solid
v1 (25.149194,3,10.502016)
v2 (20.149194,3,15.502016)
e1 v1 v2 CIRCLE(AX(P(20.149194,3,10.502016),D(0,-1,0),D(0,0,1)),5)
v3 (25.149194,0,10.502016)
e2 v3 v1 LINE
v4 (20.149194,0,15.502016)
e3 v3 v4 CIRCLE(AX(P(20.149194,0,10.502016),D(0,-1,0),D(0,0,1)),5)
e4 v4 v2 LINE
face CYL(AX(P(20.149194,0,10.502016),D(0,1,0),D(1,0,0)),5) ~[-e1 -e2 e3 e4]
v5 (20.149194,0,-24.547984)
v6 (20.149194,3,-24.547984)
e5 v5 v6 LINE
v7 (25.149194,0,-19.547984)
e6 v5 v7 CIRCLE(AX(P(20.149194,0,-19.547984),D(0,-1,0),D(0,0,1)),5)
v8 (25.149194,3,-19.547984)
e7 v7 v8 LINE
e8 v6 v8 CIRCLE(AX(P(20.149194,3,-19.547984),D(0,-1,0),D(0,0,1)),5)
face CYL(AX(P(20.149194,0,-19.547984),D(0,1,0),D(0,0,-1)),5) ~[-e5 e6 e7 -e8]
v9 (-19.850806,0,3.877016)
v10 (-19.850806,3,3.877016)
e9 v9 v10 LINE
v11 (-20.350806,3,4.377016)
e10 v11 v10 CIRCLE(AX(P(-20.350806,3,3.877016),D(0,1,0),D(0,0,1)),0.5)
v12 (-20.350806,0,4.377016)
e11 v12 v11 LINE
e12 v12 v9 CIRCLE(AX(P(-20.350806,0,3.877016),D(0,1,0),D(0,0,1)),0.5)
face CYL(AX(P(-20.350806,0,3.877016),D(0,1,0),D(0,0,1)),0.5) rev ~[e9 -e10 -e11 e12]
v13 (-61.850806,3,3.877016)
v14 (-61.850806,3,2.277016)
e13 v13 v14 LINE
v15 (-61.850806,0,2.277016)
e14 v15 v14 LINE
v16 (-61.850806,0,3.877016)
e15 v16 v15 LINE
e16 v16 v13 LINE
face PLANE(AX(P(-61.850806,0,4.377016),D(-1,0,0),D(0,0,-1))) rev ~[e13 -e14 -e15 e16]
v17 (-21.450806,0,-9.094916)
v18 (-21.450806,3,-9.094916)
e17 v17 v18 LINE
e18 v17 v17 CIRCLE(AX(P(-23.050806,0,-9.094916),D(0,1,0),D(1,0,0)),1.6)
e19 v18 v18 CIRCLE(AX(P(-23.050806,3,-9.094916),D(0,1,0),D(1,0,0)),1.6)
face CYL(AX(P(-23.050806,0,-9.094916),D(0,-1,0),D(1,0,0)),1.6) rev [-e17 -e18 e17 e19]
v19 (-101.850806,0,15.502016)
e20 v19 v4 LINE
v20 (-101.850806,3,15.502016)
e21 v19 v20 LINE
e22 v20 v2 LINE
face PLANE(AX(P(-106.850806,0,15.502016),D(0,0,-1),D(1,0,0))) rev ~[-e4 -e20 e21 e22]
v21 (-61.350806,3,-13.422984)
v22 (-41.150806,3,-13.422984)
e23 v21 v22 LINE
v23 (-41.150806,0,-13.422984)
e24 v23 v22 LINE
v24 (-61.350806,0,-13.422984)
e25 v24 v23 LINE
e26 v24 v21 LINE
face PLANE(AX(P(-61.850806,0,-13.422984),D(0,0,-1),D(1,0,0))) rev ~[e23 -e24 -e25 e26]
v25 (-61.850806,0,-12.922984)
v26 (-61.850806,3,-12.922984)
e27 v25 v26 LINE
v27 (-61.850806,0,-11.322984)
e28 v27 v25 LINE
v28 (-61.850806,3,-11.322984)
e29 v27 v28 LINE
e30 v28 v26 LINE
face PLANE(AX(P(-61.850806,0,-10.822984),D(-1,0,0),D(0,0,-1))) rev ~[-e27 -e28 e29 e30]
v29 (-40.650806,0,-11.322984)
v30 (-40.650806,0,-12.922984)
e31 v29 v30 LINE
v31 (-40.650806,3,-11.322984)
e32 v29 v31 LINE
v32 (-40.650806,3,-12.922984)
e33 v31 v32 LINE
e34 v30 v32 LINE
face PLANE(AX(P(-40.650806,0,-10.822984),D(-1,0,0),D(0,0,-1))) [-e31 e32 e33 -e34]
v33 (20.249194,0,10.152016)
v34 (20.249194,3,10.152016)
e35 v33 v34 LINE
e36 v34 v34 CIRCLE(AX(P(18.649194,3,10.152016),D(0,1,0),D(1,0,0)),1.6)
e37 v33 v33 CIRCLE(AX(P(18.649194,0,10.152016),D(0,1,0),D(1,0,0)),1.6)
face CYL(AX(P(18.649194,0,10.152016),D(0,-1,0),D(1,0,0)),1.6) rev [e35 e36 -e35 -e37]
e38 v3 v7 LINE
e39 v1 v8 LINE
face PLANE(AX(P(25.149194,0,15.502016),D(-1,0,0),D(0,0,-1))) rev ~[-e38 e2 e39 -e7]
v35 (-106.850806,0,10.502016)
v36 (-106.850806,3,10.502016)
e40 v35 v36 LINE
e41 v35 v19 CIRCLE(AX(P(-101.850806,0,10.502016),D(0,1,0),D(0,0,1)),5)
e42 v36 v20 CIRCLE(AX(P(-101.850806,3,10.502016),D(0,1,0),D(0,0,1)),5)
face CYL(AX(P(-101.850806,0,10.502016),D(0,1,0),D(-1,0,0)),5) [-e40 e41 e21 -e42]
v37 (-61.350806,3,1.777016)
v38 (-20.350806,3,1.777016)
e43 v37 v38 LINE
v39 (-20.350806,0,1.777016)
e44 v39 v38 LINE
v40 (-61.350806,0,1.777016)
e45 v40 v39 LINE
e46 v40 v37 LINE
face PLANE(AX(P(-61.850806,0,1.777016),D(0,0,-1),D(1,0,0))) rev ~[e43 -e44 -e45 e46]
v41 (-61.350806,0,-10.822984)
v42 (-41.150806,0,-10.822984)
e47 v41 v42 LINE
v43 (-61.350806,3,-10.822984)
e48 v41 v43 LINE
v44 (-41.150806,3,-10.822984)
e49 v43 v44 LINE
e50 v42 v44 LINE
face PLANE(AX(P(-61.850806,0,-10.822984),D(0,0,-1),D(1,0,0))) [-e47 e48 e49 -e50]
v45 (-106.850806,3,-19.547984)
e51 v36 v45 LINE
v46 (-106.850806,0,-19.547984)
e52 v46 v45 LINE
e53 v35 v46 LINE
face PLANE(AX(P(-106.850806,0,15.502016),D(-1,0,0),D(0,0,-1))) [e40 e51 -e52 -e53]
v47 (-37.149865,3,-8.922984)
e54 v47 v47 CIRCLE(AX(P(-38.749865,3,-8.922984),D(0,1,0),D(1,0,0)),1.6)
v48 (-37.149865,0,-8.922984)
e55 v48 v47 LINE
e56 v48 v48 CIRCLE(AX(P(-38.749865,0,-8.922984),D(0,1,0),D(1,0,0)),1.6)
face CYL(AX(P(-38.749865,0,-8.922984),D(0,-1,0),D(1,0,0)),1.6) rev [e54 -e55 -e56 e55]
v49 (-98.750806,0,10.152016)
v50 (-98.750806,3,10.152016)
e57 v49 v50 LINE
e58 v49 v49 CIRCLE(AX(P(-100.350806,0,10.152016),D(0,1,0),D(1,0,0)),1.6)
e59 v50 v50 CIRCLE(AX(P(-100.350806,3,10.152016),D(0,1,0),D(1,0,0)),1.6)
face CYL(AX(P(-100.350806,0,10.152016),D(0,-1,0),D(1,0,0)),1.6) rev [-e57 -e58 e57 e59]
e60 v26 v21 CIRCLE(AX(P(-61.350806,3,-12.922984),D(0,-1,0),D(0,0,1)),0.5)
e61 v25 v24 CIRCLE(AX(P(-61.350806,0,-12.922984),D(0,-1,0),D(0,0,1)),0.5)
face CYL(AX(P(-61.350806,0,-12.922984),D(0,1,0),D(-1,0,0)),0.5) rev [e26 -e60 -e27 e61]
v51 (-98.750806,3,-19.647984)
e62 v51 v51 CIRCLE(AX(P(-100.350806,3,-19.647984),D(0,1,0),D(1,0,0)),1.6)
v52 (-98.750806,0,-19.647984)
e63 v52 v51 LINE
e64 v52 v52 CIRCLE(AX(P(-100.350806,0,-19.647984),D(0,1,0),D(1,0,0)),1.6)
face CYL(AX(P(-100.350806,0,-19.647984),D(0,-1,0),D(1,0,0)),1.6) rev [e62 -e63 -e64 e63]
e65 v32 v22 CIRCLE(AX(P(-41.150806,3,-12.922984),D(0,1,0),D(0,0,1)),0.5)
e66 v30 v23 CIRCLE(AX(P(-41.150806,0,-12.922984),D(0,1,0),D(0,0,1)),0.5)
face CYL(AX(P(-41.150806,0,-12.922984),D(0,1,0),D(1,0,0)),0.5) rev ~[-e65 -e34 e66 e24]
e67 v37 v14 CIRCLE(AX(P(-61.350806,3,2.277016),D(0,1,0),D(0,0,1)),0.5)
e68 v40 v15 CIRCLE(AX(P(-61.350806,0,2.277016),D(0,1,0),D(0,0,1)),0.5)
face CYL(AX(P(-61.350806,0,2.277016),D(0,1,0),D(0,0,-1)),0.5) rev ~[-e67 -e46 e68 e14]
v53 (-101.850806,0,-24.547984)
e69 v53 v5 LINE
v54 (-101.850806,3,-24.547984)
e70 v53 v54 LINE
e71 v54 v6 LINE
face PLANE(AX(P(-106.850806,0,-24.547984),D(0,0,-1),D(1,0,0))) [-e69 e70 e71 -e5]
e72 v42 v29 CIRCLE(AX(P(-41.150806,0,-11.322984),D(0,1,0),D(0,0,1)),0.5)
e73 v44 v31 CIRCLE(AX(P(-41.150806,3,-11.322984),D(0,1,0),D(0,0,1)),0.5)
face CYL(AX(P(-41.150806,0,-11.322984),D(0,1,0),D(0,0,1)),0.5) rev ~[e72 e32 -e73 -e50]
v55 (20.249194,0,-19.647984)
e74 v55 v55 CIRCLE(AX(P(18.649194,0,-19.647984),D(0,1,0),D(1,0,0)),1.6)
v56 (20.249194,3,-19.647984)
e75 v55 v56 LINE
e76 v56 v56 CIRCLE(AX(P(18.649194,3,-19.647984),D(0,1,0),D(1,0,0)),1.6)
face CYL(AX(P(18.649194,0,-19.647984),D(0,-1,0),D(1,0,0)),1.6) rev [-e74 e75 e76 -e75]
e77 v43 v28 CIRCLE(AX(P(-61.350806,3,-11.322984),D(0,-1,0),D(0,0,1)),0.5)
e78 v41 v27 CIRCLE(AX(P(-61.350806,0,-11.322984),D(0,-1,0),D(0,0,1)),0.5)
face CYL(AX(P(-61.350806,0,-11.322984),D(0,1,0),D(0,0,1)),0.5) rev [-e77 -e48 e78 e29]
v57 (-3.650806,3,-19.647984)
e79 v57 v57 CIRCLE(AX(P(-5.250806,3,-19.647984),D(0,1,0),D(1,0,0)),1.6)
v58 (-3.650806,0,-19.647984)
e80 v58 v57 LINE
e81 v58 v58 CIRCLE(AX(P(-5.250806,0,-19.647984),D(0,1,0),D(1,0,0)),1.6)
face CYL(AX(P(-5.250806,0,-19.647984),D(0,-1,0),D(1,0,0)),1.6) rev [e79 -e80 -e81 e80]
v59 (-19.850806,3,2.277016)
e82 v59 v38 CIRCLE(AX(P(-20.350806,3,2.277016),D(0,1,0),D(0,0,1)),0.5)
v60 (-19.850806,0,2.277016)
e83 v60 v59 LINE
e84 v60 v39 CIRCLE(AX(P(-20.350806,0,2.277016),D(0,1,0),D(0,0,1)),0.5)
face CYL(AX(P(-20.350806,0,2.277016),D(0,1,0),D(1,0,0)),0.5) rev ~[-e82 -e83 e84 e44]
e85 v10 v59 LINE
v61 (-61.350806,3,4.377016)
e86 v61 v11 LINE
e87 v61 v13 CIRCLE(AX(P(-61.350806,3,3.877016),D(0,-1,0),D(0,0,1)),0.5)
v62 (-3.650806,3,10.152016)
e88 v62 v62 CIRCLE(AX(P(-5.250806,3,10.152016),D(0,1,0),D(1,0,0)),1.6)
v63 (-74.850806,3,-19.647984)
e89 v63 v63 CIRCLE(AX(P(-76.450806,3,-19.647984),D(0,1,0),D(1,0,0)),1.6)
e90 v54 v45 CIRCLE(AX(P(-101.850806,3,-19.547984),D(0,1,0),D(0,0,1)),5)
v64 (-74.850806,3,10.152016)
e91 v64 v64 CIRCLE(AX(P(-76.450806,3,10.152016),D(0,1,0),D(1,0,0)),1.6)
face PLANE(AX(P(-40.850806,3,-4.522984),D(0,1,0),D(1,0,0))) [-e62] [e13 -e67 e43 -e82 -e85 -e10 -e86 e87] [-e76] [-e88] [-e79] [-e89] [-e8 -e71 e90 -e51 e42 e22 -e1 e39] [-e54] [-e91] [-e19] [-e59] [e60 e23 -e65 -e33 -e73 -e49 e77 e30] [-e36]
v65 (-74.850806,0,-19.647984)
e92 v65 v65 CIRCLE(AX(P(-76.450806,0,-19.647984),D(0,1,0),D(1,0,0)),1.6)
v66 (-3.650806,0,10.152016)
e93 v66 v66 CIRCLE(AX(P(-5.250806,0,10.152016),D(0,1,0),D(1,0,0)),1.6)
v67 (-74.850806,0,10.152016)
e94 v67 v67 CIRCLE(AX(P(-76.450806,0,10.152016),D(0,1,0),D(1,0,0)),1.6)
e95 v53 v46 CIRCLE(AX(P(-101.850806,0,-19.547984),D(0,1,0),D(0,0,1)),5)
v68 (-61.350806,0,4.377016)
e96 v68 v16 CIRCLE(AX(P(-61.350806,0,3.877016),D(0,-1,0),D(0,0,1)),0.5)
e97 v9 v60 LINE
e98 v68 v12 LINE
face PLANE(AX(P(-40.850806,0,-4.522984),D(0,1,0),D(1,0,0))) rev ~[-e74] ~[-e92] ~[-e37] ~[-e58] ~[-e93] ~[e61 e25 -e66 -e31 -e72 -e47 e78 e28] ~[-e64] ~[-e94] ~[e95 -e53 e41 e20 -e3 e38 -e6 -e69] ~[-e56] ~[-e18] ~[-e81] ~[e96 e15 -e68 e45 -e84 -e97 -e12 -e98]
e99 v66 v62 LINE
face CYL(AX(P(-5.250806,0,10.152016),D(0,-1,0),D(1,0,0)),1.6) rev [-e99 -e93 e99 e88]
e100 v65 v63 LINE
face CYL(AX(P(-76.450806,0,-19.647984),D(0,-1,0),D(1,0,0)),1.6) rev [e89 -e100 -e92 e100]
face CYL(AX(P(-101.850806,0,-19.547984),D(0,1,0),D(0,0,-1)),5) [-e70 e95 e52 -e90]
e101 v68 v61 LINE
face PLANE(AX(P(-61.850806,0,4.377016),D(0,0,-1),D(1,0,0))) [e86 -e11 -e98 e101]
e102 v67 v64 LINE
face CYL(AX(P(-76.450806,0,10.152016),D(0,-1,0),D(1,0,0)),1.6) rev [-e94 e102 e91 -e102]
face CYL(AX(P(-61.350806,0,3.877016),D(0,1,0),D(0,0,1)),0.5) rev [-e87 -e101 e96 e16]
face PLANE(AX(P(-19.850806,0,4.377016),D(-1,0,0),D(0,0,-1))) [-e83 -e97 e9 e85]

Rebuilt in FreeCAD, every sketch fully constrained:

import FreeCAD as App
import Part
import Sketcher
Q = App.Units.Quantity


def edges_at(feature, points):
    """Names of the edges that pass closest to the given points."""
    edges = feature.Shape.Edges
    near = lambda p: min(range(len(edges)), key=lambda i: edges[i].distToShape(Part.Vertex(*p))[0])
    return sorted({f"Edge{near(p) + 1}" for p in points})

doc = App.newDocument("Part")
body = doc.addObject("PartDesign::Body", "Body")

# Sketch on XZ plane
sketch1 = body.newObject("Sketcher::SketchObject", "Sketch")
sketch1.AttachmentSupport = (doc.getObject("XZ_Plane"), [""])
sketch1.MapMode = "FlatFace"
sketch1.addGeometry([
    Part.LineSegment(App.Vector(-106.850806, -24.547984, 0), App.Vector(-106.850806, 15.502016, 0)),  # 0
    Part.LineSegment(App.Vector(-106.850806, 15.502016, 0), App.Vector(25.149194, 15.502016, 0)),  # 1
    Part.LineSegment(App.Vector(25.149194, 15.502016, 0), App.Vector(25.149194, -24.547984, 0)),  # 2
    Part.LineSegment(App.Vector(25.149194, -24.547984, 0), App.Vector(-106.850806, -24.547984, 0)),  # 3
    Part.Circle(App.Vector(-100.350806, 10.152016, 0), App.Vector(0, 0, 1), 1.6),  # 4
    Part.Circle(App.Vector(-76.450806, 10.152016, 0), App.Vector(0, 0, 1), 1.6),  # 5
    Part.Circle(App.Vector(-5.250806, 10.152016, 0), App.Vector(0, 0, 1), 1.6),  # 6
    Part.Circle(App.Vector(18.649194, 10.152016, 0), App.Vector(0, 0, 1), 1.6),  # 7
    Part.LineSegment(App.Vector(-19.850806, 4.377016, 0), App.Vector(-61.850806, 4.377016, 0)),  # 8
    Part.LineSegment(App.Vector(-61.850806, 4.377016, 0), App.Vector(-61.850806, 1.777016, 0)),  # 9
    Part.LineSegment(App.Vector(-61.850806, 1.777016, 0), App.Vector(-19.850806, 1.777016, 0)),  # 10
    Part.LineSegment(App.Vector(-19.850806, 1.777016, 0), App.Vector(-19.850806, 4.377016, 0)),  # 11
    Part.LineSegment(App.Vector(-40.650806, -10.822984, 0), App.Vector(-61.850806, -10.822984, 0)),  # 12
    Part.LineSegment(App.Vector(-61.850806, -10.822984, 0), App.Vector(-61.850806, -13.422984, 0)),  # 13
    Part.LineSegment(App.Vector(-61.850806, -13.422984, 0), App.Vector(-40.650806, -13.422984, 0)),  # 14
    Part.LineSegment(App.Vector(-40.650806, -13.422984, 0), App.Vector(-40.650806, -10.822984, 0)),  # 15
    Part.Circle(App.Vector(-100.350806, -19.647984, 0), App.Vector(0, 0, 1), 1.6),  # 16
    Part.Circle(App.Vector(-76.450806, -19.647984, 0), App.Vector(0, 0, 1), 1.6),  # 17
    Part.Circle(App.Vector(-38.749865, -8.922984, 0), App.Vector(0, 0, 1), 1.6),  # 18
    Part.Circle(App.Vector(-23.050806, -9.094916, 0), App.Vector(0, 0, 1), 1.6),  # 19
    Part.Circle(App.Vector(-5.250806, -19.647984, 0), App.Vector(0, 0, 1), 1.6),  # 20
    Part.Circle(App.Vector(18.649194, -19.647984, 0), App.Vector(0, 0, 1), 1.6),  # 21
], False)
sketch1.addConstraint([
    Sketcher.Constraint("Coincident", 0, 2, 1, 1),
    Sketcher.Constraint("Coincident", 1, 2, 2, 1),
    Sketcher.Constraint("Coincident", 2, 2, 3, 1),
    Sketcher.Constraint("Coincident", 3, 2, 0, 1),
    Sketcher.Constraint("Coincident", 8, 2, 9, 1),
    Sketcher.Constraint("Coincident", 9, 2, 10, 1),
    Sketcher.Constraint("Coincident", 10, 2, 11, 1),
    Sketcher.Constraint("Coincident", 11, 2, 8, 1),
    Sketcher.Constraint("Coincident", 12, 2, 13, 1),
    Sketcher.Constraint("Coincident", 13, 2, 14, 1),
    Sketcher.Constraint("Coincident", 14, 2, 15, 1),
    Sketcher.Constraint("Coincident", 15, 2, 12, 1),
    Sketcher.Constraint("Vertical", 0),
    Sketcher.Constraint("Horizontal", 1),
    Sketcher.Constraint("Vertical", 2),
    Sketcher.Constraint("Horizontal", 3),
    Sketcher.Constraint("Horizontal", 8),
    Sketcher.Constraint("Vertical", 9),
    Sketcher.Constraint("Horizontal", 10),
    Sketcher.Constraint("Vertical", 11),
    Sketcher.Constraint("Horizontal", 12),
    Sketcher.Constraint("Vertical", 13),
    Sketcher.Constraint("Horizontal", 14),
    Sketcher.Constraint("Vertical", 15),
    Sketcher.Constraint("Equal", 4, 5),
    Sketcher.Constraint("Equal", 5, 6),
    Sketcher.Constraint("Equal", 6, 7),
    Sketcher.Constraint("Equal", 7, 16),
    Sketcher.Constraint("Equal", 16, 17),
    Sketcher.Constraint("Equal", 17, 18),
    Sketcher.Constraint("Equal", 18, 19),
    Sketcher.Constraint("Equal", 19, 20),
    Sketcher.Constraint("Equal", 20, 21),
    Sketcher.Constraint("Horizontal", 4, 3, 5, 3),
    Sketcher.Constraint("Horizontal", 5, 3, 6, 3),
    Sketcher.Constraint("Horizontal", 6, 3, 7, 3),
    Sketcher.Constraint("Horizontal", 16, 3, 17, 3),
    Sketcher.Constraint("Horizontal", 17, 3, 20, 3),
    Sketcher.Constraint("Horizontal", 20, 3, 21, 3),
    Sketcher.Constraint("Vertical", 4, 3, 16, 3),
    Sketcher.Constraint("Vertical", 5, 3, 17, 3),
    Sketcher.Constraint("Vertical", 6, 3, 20, 3),
    Sketcher.Constraint("Vertical", 7, 3, 21, 3),
    Sketcher.Constraint("Vertical", 9, 2, 12, 2),
    Sketcher.Constraint("Equal", 11, 13),
    Sketcher.Constraint("Diameter", 4, Q("3.2 mm")),
    Sketcher.Constraint("DistanceX", 1, 1, 1, 2, Q("132 mm")),
    Sketcher.Constraint("DistanceX", 8, 2, 8, 1, Q("42 mm")),
    Sketcher.Constraint("DistanceX", 12, 2, 12, 1, Q("21.2 mm")),
    Sketcher.Constraint("DistanceY", 9, 2, 9, 1, Q("2.6 mm")),
    Sketcher.Constraint("DistanceX", 4, 3, 7, 3, Q("119 mm")),
    Sketcher.Constraint("DistanceY", 0, 1, 0, 2, Q("40.05 mm")),
    Sketcher.Constraint("DistanceX", 4, 3, 5, 3, Q("23.9 mm")),
    Sketcher.Constraint("DistanceX", 5, 3, 6, 3, Q("71.2 mm")),
    Sketcher.Constraint("DistanceY", 16, 3, 4, 3, Q("29.8 mm")),
    Sketcher.Constraint("DistanceX", 19, 3, 6, 3, Q("17.8 mm")),
    Sketcher.Constraint("DistanceX", 0, 2, 4, 3, Q("6.5 mm")),
    Sketcher.Constraint("DistanceY", 2, 2, 21, 3, Q("4.9 mm")),
    Sketcher.Constraint("DistanceX", 5, 3, 8, 2, Q("14.6 mm")),
    Sketcher.Constraint("DistanceY", 18, 3, 8, 2, Q("13.3 mm")),
    Sketcher.Constraint("DistanceY", 12, 2, 9, 2, Q("12.6 mm")),
    Sketcher.Constraint("DistanceY", 18, 3, 6, 3, Q("19.075 mm")),
    Sketcher.Constraint("DistanceX", 18, 3, 6, 3, Q("33.499059 mm")),
    Sketcher.Constraint("DistanceY", 19, 3, 18, 3, Q("0.171932 mm")),
    Sketcher.Constraint("DistanceX", 4, 3, -1, 1, Q("100.350806 mm")),
    Sketcher.Constraint("DistanceY", -1, 1, 4, 3, Q("10.152016 mm")),
])
pad1 = body.newObject("PartDesign::Pad", "Pad")
pad1.Profile = sketch1
pad1.Length = 3
pad1.Reversed = True
doc.recompute()

fillet = body.newObject("PartDesign::Fillet", "Fillet")
fillet.Base = (pad1, edges_at(pad1, [(25.149, 1.5, -24.548)]))
fillet.Radius = 5
doc.recompute()

fillet2 = body.newObject("PartDesign::Fillet", "Fillet001")
fillet2.Base = (fillet, edges_at(fillet, [(25.149, 1.5, 15.502), (-106.851, 1.5, 15.502), (-106.851, 1.5, -24.548)]))
fillet2.Radius = 5
doc.recompute()

fillet3 = body.newObject("PartDesign::Fillet", "Fillet002")
fillet3.Base = (fillet2, edges_at(fillet2, [
    (-40.651, 1.5, -10.823),
    (-40.651, 1.5, -13.423),
    (-61.851, 1.5, -13.423),
    (-61.851, 1.5, -10.823),
    (-19.851, 1.5, 4.377),
    (-19.851, 1.5, 1.777),
    (-61.851, 1.5, 1.777),
    (-61.851, 1.5, 4.377),
]))
fillet3.Radius = 0.5

doc.recompute()
